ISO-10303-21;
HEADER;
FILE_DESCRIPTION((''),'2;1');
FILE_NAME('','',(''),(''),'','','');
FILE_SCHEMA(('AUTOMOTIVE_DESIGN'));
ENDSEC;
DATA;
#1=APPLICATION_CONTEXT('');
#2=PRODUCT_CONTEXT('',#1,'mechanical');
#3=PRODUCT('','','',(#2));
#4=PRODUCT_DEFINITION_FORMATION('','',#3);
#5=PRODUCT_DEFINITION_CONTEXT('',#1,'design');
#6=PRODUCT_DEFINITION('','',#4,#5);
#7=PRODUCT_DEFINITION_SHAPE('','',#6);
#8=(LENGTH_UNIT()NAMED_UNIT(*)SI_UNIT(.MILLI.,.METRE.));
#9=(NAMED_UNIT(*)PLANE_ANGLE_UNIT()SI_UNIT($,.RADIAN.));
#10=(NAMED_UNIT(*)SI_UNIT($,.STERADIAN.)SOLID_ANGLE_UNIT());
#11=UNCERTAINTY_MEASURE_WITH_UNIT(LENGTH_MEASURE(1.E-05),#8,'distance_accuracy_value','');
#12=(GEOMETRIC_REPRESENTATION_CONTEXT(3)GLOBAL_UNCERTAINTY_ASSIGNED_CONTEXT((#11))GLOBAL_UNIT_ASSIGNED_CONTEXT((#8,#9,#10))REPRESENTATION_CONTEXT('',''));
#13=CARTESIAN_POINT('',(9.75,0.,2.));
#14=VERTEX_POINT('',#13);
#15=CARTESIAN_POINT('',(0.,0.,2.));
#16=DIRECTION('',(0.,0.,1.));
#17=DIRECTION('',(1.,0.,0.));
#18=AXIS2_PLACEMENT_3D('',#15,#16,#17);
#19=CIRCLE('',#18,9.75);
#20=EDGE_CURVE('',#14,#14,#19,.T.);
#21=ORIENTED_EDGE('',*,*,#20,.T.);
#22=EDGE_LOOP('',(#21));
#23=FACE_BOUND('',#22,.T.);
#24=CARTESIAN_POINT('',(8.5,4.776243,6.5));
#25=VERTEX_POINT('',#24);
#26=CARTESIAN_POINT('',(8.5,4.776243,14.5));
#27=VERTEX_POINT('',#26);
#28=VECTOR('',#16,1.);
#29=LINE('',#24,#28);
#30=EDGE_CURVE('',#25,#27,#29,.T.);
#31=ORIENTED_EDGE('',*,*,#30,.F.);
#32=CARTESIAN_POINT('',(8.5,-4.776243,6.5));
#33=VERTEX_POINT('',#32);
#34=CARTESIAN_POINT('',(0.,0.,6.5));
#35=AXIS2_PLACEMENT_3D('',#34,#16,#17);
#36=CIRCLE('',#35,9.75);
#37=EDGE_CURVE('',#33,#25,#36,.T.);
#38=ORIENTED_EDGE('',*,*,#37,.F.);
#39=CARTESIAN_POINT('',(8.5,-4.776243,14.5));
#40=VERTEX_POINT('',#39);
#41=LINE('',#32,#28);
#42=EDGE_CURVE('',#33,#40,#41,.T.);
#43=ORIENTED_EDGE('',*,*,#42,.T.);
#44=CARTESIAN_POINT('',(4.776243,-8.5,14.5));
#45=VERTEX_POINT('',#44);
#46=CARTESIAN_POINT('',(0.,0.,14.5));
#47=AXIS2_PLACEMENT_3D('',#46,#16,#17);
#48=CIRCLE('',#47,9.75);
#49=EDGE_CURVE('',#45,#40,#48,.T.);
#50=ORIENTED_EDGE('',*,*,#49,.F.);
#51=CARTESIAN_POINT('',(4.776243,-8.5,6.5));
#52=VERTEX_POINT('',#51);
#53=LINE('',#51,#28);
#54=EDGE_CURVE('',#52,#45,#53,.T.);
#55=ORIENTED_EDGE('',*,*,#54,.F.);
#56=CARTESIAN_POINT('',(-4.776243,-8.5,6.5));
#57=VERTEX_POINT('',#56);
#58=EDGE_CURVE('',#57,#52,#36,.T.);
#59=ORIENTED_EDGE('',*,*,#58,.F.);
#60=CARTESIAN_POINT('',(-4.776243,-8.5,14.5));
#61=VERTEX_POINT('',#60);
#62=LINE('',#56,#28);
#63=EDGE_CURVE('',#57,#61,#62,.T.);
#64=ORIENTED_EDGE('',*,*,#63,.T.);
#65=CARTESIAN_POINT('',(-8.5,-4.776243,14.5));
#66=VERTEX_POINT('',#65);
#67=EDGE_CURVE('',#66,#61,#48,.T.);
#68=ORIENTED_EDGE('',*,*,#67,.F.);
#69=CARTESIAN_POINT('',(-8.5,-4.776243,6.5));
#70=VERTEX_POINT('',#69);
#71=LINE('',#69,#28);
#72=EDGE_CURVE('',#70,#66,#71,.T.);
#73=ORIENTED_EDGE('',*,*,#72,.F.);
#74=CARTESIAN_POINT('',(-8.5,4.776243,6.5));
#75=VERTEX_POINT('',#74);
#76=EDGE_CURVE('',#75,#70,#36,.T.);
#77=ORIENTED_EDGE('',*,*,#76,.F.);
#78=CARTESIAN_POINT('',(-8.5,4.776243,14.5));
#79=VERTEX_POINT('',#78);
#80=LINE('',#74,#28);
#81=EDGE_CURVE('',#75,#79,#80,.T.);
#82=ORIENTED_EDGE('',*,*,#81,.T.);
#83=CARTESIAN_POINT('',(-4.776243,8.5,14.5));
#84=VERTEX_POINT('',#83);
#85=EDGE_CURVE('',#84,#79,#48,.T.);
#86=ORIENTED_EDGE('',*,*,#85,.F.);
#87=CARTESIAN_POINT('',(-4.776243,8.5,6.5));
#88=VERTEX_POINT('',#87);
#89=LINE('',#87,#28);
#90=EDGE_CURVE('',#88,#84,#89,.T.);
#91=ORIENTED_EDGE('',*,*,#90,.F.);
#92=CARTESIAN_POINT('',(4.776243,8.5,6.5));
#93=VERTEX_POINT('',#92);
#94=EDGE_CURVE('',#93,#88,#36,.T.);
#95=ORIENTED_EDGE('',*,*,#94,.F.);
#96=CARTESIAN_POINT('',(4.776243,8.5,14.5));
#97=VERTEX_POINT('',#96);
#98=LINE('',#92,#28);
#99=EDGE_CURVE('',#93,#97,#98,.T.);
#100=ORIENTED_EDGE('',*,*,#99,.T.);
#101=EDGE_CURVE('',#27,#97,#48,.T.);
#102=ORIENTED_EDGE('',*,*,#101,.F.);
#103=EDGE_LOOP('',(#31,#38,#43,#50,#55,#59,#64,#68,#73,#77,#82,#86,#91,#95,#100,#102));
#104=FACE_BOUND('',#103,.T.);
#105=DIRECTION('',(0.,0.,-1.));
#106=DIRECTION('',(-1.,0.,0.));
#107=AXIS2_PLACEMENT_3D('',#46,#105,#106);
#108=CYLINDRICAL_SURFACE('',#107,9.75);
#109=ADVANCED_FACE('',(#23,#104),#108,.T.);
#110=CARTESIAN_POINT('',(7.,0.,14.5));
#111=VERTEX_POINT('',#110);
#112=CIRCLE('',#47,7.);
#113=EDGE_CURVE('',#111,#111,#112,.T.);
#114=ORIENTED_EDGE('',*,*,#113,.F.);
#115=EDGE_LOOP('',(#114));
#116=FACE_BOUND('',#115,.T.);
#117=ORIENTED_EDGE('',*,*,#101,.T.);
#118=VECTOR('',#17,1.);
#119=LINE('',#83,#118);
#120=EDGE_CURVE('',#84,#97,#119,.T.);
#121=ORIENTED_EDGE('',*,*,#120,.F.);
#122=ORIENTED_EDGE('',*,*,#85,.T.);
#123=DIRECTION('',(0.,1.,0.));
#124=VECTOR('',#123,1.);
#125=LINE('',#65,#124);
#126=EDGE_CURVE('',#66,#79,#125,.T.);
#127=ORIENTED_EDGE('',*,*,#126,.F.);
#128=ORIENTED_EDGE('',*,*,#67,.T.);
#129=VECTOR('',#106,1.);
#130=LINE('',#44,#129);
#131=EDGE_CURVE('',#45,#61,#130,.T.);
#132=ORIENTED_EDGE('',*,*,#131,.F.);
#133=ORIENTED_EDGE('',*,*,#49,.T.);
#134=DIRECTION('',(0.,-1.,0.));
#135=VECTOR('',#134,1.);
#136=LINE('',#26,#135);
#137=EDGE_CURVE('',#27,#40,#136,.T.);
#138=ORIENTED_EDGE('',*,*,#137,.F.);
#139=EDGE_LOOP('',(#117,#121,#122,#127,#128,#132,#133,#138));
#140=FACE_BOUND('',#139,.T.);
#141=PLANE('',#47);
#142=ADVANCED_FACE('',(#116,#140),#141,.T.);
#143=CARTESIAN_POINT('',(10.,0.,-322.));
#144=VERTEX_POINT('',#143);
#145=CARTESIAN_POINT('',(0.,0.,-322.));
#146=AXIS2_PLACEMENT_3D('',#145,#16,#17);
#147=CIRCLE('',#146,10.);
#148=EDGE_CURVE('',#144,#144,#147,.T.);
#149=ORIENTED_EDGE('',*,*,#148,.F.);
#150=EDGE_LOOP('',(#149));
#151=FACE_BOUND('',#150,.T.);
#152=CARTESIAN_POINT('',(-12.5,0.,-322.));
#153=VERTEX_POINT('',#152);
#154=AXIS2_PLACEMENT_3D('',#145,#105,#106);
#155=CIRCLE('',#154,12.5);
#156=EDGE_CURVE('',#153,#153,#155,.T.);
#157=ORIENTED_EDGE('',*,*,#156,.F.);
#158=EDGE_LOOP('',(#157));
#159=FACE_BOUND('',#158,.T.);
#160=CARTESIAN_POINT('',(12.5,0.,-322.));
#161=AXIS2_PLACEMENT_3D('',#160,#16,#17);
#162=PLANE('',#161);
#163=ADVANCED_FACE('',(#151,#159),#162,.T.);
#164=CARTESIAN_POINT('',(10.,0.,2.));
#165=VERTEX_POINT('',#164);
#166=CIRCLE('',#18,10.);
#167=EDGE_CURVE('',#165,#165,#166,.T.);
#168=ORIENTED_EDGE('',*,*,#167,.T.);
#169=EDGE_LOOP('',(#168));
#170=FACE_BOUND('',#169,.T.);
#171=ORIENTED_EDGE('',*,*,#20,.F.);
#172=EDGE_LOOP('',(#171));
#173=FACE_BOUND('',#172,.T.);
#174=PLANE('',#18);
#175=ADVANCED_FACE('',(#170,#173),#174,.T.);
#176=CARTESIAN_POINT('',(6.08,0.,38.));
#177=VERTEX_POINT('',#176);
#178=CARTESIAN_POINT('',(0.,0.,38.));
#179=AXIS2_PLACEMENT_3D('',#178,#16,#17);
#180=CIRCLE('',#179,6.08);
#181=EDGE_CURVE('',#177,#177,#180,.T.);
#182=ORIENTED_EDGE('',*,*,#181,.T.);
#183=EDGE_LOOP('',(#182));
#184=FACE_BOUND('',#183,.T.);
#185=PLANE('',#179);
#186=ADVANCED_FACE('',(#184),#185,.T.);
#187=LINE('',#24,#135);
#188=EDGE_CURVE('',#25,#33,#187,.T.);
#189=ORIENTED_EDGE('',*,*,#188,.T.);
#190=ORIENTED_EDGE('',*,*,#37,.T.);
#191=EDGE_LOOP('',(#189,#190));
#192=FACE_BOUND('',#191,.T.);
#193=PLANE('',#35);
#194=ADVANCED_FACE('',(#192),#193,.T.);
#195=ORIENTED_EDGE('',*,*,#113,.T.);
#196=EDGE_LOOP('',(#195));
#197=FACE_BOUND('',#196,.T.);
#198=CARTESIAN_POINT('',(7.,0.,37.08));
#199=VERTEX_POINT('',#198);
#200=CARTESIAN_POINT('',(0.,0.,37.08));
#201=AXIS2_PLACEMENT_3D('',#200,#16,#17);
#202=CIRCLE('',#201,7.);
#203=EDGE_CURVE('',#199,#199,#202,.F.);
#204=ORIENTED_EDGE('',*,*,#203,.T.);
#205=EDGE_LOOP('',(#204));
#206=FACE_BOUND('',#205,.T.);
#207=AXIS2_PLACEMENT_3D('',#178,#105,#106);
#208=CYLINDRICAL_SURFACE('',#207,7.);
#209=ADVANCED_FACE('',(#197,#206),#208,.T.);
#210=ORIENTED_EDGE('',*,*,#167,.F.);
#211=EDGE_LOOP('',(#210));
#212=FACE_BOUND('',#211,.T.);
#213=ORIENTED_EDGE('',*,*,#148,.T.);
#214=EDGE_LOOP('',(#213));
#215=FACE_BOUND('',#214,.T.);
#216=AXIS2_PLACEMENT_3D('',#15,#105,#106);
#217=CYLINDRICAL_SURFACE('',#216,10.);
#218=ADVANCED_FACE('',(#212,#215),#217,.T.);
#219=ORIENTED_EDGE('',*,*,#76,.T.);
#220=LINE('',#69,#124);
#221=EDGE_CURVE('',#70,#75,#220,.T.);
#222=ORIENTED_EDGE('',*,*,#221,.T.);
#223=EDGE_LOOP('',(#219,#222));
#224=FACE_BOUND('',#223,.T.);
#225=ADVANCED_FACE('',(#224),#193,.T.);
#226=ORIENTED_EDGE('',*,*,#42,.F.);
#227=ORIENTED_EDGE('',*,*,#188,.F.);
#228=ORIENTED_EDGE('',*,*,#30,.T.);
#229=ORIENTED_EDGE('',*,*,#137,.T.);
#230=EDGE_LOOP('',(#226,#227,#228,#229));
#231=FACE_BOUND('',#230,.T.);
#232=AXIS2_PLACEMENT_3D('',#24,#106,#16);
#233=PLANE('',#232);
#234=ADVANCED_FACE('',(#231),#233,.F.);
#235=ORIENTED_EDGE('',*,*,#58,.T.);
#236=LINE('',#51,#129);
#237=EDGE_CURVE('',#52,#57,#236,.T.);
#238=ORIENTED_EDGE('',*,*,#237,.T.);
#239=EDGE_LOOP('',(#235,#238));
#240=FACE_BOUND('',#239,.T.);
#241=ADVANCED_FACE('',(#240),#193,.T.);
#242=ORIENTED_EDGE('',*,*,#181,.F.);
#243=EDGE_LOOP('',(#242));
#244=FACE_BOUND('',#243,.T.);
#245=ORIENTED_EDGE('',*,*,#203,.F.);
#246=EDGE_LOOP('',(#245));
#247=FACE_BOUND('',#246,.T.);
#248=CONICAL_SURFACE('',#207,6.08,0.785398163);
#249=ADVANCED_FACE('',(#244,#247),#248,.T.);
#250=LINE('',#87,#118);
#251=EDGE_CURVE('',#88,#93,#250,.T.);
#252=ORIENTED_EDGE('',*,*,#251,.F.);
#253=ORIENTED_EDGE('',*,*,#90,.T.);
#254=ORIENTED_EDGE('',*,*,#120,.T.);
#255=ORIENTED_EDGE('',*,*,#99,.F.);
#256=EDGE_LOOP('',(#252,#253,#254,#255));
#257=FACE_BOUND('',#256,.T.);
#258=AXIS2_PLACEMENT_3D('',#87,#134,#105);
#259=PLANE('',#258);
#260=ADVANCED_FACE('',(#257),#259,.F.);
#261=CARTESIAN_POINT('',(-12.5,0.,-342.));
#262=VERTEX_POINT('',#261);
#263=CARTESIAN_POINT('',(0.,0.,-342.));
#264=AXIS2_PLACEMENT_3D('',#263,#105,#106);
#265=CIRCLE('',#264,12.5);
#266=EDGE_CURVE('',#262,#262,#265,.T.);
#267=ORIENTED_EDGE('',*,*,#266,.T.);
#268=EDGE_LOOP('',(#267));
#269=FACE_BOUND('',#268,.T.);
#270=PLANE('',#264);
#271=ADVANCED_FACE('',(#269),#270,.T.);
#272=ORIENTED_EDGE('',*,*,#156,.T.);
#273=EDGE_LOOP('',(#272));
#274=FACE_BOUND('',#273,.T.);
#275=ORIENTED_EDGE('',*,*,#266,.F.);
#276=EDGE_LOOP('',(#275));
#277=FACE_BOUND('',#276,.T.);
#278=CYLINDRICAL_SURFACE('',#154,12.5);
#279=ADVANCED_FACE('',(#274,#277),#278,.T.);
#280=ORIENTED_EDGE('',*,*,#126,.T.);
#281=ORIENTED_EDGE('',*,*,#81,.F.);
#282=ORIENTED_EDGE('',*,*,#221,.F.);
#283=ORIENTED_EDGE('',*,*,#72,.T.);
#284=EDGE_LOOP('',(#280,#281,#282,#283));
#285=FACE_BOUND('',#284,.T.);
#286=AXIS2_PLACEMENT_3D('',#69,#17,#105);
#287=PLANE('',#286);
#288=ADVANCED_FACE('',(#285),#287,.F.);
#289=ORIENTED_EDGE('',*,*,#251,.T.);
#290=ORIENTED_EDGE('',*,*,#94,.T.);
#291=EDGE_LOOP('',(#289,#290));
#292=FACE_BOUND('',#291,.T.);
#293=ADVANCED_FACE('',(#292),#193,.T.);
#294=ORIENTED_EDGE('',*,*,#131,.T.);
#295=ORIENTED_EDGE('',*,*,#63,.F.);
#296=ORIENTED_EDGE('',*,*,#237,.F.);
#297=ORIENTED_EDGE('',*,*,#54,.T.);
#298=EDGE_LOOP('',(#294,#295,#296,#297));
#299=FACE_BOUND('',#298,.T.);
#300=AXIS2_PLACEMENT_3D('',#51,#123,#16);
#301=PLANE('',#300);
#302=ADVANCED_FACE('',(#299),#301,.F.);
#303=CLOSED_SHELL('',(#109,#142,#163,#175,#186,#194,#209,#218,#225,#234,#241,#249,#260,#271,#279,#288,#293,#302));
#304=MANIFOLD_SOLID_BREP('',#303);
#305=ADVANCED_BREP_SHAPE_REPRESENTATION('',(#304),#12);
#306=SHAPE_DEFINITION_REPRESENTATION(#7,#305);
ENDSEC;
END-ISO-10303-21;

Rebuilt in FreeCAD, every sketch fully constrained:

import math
import FreeCAD as App
import Part
import Sketcher
from FreeCAD import Vector


def edges_at(feature, points):
    """Names of the edges that pass closest to the given points."""
    edges = feature.Shape.Edges
    near = lambda p: min(range(len(edges)), key=lambda i: edges[i].distToShape(Part.Vertex(*p))[0])
    return sorted({f"Edge{near(p) + 1}" for p in points})


def add_polygon(sketch, points):
    """Adds a closed chain of lines whose ends are joined by coincident constraints."""
    first, n = sketch.GeometryCount, len(points)
    for a, b in zip(points, points[1:] + points[:1]):
        sketch.addGeometry(Part.LineSegment(App.Vector(*a, 0), App.Vector(*b, 0)), False)
    for i in range(n):
        sketch.addConstraint(Sketcher.Constraint("Coincident", first + i, 2, first + (i + 1) % n, 1))

doc = App.newDocument("Part")
params = doc.addObject("Spreadsheet::Sheet", "Params")
for row, (alias, value) in enumerate([
    ("sketch1_height", "20 mm"),
    ("sketch1_width", "12.5 mm"),
    ("revolution_angle", "360 deg"),
    ("sketch2_diameter", "20 mm"),
    ("pad1_length", "324 mm"),
    ("sketch3_diameter", "19.5 mm"),
    ("pad2_length", "12.5 mm"),
    ("sketch4_radius", "9.75 mm"),
    ("pocket1_length", "8 mm"),
    ("sketch5_radius", "9.75 mm"),
    ("pocket2_length", "8 mm"),
    ("sketch6_radius", "9.75 mm"),
    ("pocket3_length", "8 mm"),
    ("sketch7_radius", "9.75 mm"),
    ("pocket4_length", "8 mm"),
    ("sketch8_diameter", "14 mm"),
    ("pad3_length", "23.5 mm"),
    ("chamfer_size", "0.92 mm"),
], start=1):
    params.set(f"A{row}", alias)
    params.set(f"B{row}", "=" + value)
    params.setAlias(f"B{row}", alias)

body = doc.addObject("PartDesign::Body", "Body")

# Sketch on XZ plane
sketch1 = body.newObject("Sketcher::SketchObject", "Sketch")
sketch1.AttachmentSupport = (doc.getObject("XZ_Plane"), [""])
sketch1.MapMode = "FlatFace"
add_polygon(sketch1, [(0, -322), (0, -342), (12.5, -342), (12.5, -322)])  # lines 0-3
sketch1.addConstraint(Sketcher.Constraint("Vertical", 0))
sketch1.addConstraint(Sketcher.Constraint("Horizontal", 1))
sketch1.addConstraint(Sketcher.Constraint("Vertical", 2))
sketch1.addConstraint(Sketcher.Constraint("Horizontal", 3))
sketch1.addConstraint(Sketcher.Constraint("PointOnObject", 0, 2, -2))
sketch1.addConstraint(Sketcher.Constraint("DistanceY", 0, 2, 0, 1, 20.0))
sketch1.addConstraint(Sketcher.Constraint("DistanceX", 1, 1, 1, 2, 12.5))
sketch1.addConstraint(Sketcher.Constraint("DistanceY", 0, 2, -1, 1, 342.0))
sketch1.setExpression("Constraints[9]", "Params.sketch1_height")
sketch1.setExpression("Constraints[10]", "Params.sketch1_width")
revolution = body.newObject("PartDesign::Revolution", "Revolution")
revolution.Profile = sketch1
revolution.ReferenceAxis = (sketch1, ["V_Axis"])
revolution.setExpression("Angle", "Params.revolution_angle")

# Sketch on XY plane
sketch2 = body.newObject("Sketcher::SketchObject", "Sketch001")
sketch2.AttachmentSupport = (doc.getObject("XY_Plane"), [""])
sketch2.MapMode = "FlatFace"
sketch2.AttachmentOffset = App.Placement(Vector(0, 0, -322), App.Rotation())
sketch2.addGeometry(Part.Circle(Vector(0, 0, 0), Vector(0, 0, 1), 10), False)
sketch2.addConstraint(Sketcher.Constraint("Coincident", 0, 3, -1, 1))
sketch2.addConstraint(Sketcher.Constraint("Diameter", 0, 20.0))
sketch2.setExpression("Constraints[1]", "Params.sketch2_diameter")
pad1 = body.newObject("PartDesign::Pad", "Pad")
pad1.Profile = sketch2
pad1.setExpression("Length", "Params.pad1_length")

# Sketch on XY plane
sketch3 = body.newObject("Sketcher::SketchObject", "Sketch002")
sketch3.AttachmentSupport = (doc.getObject("XY_Plane"), [""])
sketch3.MapMode = "FlatFace"
sketch3.AttachmentOffset = App.Placement(Vector(0, 0, 2), App.Rotation())
sketch3.addGeometry(Part.Circle(Vector(0, 0, 0), Vector(0, 0, 1), 9.75), False)
sketch3.addConstraint(Sketcher.Constraint("Coincident", 0, 3, -1, 1))
sketch3.addConstraint(Sketcher.Constraint("Diameter", 0, 19.5))
sketch3.setExpression("Constraints[1]", "Params.sketch3_diameter")
pad2 = body.newObject("PartDesign::Pad", "Pad001")
pad2.Profile = sketch3
pad2.setExpression("Length", "Params.pad2_length")

# Sketch on XY plane
sketch4 = body.newObject("Sketcher::SketchObject", "Sketch003")
sketch4.AttachmentSupport = (doc.getObject("XY_Plane"), [""])
sketch4.MapMode = "FlatFace"
sketch4.AttachmentOffset = App.Placement(Vector(0, 0, 6.5), App.Rotation())
sketch4.addGeometry(Part.LineSegment(Vector(-8.5, -4.776243, 0), Vector(-8.5, 4.776243, 0)), False)
sketch4.addGeometry(Part.ArcOfCircle(Part.Circle(Vector(0, 0, 0), Vector(0, 0, 1), 9.75), math.radians(150.66789), math.radians(209.33211)), False)
sketch4.addConstraint(Sketcher.Constraint("Coincident", 0, 1, 1, 2))
sketch4.addConstraint(Sketcher.Constraint("Coincident", 1, 1, 0, 2))
sketch4.addConstraint(Sketcher.Constraint("Vertical", 0))
sketch4.addConstraint(Sketcher.Constraint("Coincident", 1, 3, -1, 1))
sketch4.addConstraint(Sketcher.Constraint("Radius", 1, 9.75))
sketch4.addConstraint(Sketcher.Constraint("DistanceX", 0, 1, -1, 1, 8.5))
sketch4.setExpression("Constraints[4]", "Params.sketch4_radius")
pocket1 = body.newObject("PartDesign::Pocket", "Pocket")
pocket1.Profile = sketch4
pocket1.setExpression("Length", "Params.pocket1_length")
pocket1.Reversed = True

# Sketch on XY plane
sketch5 = body.newObject("Sketcher::SketchObject", "Sketch004")
sketch5.AttachmentSupport = (doc.getObject("XY_Plane"), [""])
sketch5.MapMode = "FlatFace"
sketch5.AttachmentOffset = App.Placement(Vector(0, 0, 6.5), App.Rotation())
sketch5.addGeometry(Part.LineSegment(Vector(4.776243, -8.5, 0), Vector(-4.776243, -8.5, 0)), False)
sketch5.addGeometry(Part.ArcOfCircle(Part.Circle(Vector(0, 0, 0), Vector(0, 0, 1), 9.75), math.radians(-119.33211), math.radians(-60.66789)), False)
sketch5.addConstraint(Sketcher.Constraint("Coincident", 0, 1, 1, 2))
sketch5.addConstraint(Sketcher.Constraint("Coincident", 1, 1, 0, 2))
sketch5.addConstraint(Sketcher.Constraint("Horizontal", 0))
sketch5.addConstraint(Sketcher.Constraint("Coincident", 1, 3, -1, 1))
sketch5.addConstraint(Sketcher.Constraint("Radius", 1, 9.75))
sketch5.addConstraint(Sketcher.Constraint("DistanceY", 0, 1, -1, 1, 8.5))
sketch5.setExpression("Constraints[4]", "Params.sketch5_radius")
pocket2 = body.newObject("PartDesign::Pocket", "Pocket001")
pocket2.Profile = sketch5
pocket2.setExpression("Length", "Params.pocket2_length")
pocket2.Reversed = True

# Sketch on XY plane
sketch6 = body.newObject("Sketcher::SketchObject", "Sketch005")
sketch6.AttachmentSupport = (doc.getObject("XY_Plane"), [""])
sketch6.MapMode = "FlatFace"
sketch6.AttachmentOffset = App.Placement(Vector(0, 0, 6.5), App.Rotation())
sketch6.addGeometry(Part.LineSegment(Vector(8.5, 4.776243, 0), Vector(8.5, -4.776243, 0)), False)
sketch6.addGeometry(Part.ArcOfCircle(Part.Circle(Vector(0, 0, 0), Vector(0, 0, 1), 9.75), math.radians(-29.33211), math.radians(29.33211)), False)
sketch6.addConstraint(Sketcher.Constraint("Coincident", 0, 1, 1, 2))
sketch6.addConstraint(Sketcher.Constraint("Coincident", 1, 1, 0, 2))
sketch6.addConstraint(Sketcher.Constraint("Vertical", 0))
sketch6.addConstraint(Sketcher.Constraint("Coincident", 1, 3, -1, 1))
sketch6.addConstraint(Sketcher.Constraint("Radius", 1, 9.75))
sketch6.addConstraint(Sketcher.Constraint("DistanceX", -1, 1, 0, 1, 8.5))
sketch6.setExpression("Constraints[4]", "Params.sketch6_radius")
pocket3 = body.newObject("PartDesign::Pocket", "Pocket002")
pocket3.Profile = sketch6
pocket3.setExpression("Length", "Params.pocket3_length")
pocket3.Reversed = True

# Sketch on XY plane
sketch7 = body.newObject("Sketcher::SketchObject", "Sketch006")
sketch7.AttachmentSupport = (doc.getObject("XY_Plane"), [""])
sketch7.MapMode = "FlatFace"
sketch7.AttachmentOffset = App.Placement(Vector(0, 0, 6.5), App.Rotation())
sketch7.addGeometry(Part.LineSegment(Vector(-4.776243, 8.5, 0), Vector(4.776243, 8.5, 0)), False)
sketch7.addGeometry(Part.ArcOfCircle(Part.Circle(Vector(0, 0, 0), Vector(0, 0, 1), 9.75), math.radians(60.66789), math.radians(119.33211)), False)
sketch7.addConstraint(Sketcher.Constraint("Coincident", 0, 1, 1, 2))
sketch7.addConstraint(Sketcher.Constraint("Coincident", 1, 1, 0, 2))
sketch7.addConstraint(Sketcher.Constraint("Horizontal", 0))
sketch7.addConstraint(Sketcher.Constraint("Coincident", 1, 3, -1, 1))
sketch7.addConstraint(Sketcher.Constraint("Radius", 1, 9.75))
sketch7.addConstraint(Sketcher.Constraint("DistanceY", -1, 1, 0, 1, 8.5))
sketch7.setExpression("Constraints[4]", "Params.sketch7_radius")
pocket4 = body.newObject("PartDesign::Pocket", "Pocket003")
pocket4.Profile = sketch7
pocket4.setExpression("Length", "Params.pocket4_length")
pocket4.Reversed = True

# Sketch on XY plane
sketch8 = body.newObject("Sketcher::SketchObject", "Sketch007")
sketch8.AttachmentSupport = (doc.getObject("XY_Plane"), [""])
sketch8.MapMode = "FlatFace"
sketch8.AttachmentOffset = App.Placement(Vector(0, 0, 14.5), App.Rotation())
sketch8.addGeometry(Part.Circle(Vector(0, 0, 0), Vector(0, 0, 1), 7), False)
sketch8.addConstraint(Sketcher.Constraint("Coincident", 0, 3, -1, 1))
sketch8.addConstraint(Sketcher.Constraint("Diameter", 0, 14.0))
sketch8.setExpression("Constraints[1]", "Params.sketch8_diameter")
pad3 = body.newObject("PartDesign::Pad", "Pad002")
pad3.Profile = sketch8
pad3.setExpression("Length", "Params.pad3_length")
doc.recompute()

chamfer = body.newObject("PartDesign::Chamfer", "Chamfer")
chamfer.Base = (pad3, edges_at(pad3, [(-7, 0, 38)]))
chamfer.setExpression("Size", "Params.chamfer_size")

doc.recompute()
